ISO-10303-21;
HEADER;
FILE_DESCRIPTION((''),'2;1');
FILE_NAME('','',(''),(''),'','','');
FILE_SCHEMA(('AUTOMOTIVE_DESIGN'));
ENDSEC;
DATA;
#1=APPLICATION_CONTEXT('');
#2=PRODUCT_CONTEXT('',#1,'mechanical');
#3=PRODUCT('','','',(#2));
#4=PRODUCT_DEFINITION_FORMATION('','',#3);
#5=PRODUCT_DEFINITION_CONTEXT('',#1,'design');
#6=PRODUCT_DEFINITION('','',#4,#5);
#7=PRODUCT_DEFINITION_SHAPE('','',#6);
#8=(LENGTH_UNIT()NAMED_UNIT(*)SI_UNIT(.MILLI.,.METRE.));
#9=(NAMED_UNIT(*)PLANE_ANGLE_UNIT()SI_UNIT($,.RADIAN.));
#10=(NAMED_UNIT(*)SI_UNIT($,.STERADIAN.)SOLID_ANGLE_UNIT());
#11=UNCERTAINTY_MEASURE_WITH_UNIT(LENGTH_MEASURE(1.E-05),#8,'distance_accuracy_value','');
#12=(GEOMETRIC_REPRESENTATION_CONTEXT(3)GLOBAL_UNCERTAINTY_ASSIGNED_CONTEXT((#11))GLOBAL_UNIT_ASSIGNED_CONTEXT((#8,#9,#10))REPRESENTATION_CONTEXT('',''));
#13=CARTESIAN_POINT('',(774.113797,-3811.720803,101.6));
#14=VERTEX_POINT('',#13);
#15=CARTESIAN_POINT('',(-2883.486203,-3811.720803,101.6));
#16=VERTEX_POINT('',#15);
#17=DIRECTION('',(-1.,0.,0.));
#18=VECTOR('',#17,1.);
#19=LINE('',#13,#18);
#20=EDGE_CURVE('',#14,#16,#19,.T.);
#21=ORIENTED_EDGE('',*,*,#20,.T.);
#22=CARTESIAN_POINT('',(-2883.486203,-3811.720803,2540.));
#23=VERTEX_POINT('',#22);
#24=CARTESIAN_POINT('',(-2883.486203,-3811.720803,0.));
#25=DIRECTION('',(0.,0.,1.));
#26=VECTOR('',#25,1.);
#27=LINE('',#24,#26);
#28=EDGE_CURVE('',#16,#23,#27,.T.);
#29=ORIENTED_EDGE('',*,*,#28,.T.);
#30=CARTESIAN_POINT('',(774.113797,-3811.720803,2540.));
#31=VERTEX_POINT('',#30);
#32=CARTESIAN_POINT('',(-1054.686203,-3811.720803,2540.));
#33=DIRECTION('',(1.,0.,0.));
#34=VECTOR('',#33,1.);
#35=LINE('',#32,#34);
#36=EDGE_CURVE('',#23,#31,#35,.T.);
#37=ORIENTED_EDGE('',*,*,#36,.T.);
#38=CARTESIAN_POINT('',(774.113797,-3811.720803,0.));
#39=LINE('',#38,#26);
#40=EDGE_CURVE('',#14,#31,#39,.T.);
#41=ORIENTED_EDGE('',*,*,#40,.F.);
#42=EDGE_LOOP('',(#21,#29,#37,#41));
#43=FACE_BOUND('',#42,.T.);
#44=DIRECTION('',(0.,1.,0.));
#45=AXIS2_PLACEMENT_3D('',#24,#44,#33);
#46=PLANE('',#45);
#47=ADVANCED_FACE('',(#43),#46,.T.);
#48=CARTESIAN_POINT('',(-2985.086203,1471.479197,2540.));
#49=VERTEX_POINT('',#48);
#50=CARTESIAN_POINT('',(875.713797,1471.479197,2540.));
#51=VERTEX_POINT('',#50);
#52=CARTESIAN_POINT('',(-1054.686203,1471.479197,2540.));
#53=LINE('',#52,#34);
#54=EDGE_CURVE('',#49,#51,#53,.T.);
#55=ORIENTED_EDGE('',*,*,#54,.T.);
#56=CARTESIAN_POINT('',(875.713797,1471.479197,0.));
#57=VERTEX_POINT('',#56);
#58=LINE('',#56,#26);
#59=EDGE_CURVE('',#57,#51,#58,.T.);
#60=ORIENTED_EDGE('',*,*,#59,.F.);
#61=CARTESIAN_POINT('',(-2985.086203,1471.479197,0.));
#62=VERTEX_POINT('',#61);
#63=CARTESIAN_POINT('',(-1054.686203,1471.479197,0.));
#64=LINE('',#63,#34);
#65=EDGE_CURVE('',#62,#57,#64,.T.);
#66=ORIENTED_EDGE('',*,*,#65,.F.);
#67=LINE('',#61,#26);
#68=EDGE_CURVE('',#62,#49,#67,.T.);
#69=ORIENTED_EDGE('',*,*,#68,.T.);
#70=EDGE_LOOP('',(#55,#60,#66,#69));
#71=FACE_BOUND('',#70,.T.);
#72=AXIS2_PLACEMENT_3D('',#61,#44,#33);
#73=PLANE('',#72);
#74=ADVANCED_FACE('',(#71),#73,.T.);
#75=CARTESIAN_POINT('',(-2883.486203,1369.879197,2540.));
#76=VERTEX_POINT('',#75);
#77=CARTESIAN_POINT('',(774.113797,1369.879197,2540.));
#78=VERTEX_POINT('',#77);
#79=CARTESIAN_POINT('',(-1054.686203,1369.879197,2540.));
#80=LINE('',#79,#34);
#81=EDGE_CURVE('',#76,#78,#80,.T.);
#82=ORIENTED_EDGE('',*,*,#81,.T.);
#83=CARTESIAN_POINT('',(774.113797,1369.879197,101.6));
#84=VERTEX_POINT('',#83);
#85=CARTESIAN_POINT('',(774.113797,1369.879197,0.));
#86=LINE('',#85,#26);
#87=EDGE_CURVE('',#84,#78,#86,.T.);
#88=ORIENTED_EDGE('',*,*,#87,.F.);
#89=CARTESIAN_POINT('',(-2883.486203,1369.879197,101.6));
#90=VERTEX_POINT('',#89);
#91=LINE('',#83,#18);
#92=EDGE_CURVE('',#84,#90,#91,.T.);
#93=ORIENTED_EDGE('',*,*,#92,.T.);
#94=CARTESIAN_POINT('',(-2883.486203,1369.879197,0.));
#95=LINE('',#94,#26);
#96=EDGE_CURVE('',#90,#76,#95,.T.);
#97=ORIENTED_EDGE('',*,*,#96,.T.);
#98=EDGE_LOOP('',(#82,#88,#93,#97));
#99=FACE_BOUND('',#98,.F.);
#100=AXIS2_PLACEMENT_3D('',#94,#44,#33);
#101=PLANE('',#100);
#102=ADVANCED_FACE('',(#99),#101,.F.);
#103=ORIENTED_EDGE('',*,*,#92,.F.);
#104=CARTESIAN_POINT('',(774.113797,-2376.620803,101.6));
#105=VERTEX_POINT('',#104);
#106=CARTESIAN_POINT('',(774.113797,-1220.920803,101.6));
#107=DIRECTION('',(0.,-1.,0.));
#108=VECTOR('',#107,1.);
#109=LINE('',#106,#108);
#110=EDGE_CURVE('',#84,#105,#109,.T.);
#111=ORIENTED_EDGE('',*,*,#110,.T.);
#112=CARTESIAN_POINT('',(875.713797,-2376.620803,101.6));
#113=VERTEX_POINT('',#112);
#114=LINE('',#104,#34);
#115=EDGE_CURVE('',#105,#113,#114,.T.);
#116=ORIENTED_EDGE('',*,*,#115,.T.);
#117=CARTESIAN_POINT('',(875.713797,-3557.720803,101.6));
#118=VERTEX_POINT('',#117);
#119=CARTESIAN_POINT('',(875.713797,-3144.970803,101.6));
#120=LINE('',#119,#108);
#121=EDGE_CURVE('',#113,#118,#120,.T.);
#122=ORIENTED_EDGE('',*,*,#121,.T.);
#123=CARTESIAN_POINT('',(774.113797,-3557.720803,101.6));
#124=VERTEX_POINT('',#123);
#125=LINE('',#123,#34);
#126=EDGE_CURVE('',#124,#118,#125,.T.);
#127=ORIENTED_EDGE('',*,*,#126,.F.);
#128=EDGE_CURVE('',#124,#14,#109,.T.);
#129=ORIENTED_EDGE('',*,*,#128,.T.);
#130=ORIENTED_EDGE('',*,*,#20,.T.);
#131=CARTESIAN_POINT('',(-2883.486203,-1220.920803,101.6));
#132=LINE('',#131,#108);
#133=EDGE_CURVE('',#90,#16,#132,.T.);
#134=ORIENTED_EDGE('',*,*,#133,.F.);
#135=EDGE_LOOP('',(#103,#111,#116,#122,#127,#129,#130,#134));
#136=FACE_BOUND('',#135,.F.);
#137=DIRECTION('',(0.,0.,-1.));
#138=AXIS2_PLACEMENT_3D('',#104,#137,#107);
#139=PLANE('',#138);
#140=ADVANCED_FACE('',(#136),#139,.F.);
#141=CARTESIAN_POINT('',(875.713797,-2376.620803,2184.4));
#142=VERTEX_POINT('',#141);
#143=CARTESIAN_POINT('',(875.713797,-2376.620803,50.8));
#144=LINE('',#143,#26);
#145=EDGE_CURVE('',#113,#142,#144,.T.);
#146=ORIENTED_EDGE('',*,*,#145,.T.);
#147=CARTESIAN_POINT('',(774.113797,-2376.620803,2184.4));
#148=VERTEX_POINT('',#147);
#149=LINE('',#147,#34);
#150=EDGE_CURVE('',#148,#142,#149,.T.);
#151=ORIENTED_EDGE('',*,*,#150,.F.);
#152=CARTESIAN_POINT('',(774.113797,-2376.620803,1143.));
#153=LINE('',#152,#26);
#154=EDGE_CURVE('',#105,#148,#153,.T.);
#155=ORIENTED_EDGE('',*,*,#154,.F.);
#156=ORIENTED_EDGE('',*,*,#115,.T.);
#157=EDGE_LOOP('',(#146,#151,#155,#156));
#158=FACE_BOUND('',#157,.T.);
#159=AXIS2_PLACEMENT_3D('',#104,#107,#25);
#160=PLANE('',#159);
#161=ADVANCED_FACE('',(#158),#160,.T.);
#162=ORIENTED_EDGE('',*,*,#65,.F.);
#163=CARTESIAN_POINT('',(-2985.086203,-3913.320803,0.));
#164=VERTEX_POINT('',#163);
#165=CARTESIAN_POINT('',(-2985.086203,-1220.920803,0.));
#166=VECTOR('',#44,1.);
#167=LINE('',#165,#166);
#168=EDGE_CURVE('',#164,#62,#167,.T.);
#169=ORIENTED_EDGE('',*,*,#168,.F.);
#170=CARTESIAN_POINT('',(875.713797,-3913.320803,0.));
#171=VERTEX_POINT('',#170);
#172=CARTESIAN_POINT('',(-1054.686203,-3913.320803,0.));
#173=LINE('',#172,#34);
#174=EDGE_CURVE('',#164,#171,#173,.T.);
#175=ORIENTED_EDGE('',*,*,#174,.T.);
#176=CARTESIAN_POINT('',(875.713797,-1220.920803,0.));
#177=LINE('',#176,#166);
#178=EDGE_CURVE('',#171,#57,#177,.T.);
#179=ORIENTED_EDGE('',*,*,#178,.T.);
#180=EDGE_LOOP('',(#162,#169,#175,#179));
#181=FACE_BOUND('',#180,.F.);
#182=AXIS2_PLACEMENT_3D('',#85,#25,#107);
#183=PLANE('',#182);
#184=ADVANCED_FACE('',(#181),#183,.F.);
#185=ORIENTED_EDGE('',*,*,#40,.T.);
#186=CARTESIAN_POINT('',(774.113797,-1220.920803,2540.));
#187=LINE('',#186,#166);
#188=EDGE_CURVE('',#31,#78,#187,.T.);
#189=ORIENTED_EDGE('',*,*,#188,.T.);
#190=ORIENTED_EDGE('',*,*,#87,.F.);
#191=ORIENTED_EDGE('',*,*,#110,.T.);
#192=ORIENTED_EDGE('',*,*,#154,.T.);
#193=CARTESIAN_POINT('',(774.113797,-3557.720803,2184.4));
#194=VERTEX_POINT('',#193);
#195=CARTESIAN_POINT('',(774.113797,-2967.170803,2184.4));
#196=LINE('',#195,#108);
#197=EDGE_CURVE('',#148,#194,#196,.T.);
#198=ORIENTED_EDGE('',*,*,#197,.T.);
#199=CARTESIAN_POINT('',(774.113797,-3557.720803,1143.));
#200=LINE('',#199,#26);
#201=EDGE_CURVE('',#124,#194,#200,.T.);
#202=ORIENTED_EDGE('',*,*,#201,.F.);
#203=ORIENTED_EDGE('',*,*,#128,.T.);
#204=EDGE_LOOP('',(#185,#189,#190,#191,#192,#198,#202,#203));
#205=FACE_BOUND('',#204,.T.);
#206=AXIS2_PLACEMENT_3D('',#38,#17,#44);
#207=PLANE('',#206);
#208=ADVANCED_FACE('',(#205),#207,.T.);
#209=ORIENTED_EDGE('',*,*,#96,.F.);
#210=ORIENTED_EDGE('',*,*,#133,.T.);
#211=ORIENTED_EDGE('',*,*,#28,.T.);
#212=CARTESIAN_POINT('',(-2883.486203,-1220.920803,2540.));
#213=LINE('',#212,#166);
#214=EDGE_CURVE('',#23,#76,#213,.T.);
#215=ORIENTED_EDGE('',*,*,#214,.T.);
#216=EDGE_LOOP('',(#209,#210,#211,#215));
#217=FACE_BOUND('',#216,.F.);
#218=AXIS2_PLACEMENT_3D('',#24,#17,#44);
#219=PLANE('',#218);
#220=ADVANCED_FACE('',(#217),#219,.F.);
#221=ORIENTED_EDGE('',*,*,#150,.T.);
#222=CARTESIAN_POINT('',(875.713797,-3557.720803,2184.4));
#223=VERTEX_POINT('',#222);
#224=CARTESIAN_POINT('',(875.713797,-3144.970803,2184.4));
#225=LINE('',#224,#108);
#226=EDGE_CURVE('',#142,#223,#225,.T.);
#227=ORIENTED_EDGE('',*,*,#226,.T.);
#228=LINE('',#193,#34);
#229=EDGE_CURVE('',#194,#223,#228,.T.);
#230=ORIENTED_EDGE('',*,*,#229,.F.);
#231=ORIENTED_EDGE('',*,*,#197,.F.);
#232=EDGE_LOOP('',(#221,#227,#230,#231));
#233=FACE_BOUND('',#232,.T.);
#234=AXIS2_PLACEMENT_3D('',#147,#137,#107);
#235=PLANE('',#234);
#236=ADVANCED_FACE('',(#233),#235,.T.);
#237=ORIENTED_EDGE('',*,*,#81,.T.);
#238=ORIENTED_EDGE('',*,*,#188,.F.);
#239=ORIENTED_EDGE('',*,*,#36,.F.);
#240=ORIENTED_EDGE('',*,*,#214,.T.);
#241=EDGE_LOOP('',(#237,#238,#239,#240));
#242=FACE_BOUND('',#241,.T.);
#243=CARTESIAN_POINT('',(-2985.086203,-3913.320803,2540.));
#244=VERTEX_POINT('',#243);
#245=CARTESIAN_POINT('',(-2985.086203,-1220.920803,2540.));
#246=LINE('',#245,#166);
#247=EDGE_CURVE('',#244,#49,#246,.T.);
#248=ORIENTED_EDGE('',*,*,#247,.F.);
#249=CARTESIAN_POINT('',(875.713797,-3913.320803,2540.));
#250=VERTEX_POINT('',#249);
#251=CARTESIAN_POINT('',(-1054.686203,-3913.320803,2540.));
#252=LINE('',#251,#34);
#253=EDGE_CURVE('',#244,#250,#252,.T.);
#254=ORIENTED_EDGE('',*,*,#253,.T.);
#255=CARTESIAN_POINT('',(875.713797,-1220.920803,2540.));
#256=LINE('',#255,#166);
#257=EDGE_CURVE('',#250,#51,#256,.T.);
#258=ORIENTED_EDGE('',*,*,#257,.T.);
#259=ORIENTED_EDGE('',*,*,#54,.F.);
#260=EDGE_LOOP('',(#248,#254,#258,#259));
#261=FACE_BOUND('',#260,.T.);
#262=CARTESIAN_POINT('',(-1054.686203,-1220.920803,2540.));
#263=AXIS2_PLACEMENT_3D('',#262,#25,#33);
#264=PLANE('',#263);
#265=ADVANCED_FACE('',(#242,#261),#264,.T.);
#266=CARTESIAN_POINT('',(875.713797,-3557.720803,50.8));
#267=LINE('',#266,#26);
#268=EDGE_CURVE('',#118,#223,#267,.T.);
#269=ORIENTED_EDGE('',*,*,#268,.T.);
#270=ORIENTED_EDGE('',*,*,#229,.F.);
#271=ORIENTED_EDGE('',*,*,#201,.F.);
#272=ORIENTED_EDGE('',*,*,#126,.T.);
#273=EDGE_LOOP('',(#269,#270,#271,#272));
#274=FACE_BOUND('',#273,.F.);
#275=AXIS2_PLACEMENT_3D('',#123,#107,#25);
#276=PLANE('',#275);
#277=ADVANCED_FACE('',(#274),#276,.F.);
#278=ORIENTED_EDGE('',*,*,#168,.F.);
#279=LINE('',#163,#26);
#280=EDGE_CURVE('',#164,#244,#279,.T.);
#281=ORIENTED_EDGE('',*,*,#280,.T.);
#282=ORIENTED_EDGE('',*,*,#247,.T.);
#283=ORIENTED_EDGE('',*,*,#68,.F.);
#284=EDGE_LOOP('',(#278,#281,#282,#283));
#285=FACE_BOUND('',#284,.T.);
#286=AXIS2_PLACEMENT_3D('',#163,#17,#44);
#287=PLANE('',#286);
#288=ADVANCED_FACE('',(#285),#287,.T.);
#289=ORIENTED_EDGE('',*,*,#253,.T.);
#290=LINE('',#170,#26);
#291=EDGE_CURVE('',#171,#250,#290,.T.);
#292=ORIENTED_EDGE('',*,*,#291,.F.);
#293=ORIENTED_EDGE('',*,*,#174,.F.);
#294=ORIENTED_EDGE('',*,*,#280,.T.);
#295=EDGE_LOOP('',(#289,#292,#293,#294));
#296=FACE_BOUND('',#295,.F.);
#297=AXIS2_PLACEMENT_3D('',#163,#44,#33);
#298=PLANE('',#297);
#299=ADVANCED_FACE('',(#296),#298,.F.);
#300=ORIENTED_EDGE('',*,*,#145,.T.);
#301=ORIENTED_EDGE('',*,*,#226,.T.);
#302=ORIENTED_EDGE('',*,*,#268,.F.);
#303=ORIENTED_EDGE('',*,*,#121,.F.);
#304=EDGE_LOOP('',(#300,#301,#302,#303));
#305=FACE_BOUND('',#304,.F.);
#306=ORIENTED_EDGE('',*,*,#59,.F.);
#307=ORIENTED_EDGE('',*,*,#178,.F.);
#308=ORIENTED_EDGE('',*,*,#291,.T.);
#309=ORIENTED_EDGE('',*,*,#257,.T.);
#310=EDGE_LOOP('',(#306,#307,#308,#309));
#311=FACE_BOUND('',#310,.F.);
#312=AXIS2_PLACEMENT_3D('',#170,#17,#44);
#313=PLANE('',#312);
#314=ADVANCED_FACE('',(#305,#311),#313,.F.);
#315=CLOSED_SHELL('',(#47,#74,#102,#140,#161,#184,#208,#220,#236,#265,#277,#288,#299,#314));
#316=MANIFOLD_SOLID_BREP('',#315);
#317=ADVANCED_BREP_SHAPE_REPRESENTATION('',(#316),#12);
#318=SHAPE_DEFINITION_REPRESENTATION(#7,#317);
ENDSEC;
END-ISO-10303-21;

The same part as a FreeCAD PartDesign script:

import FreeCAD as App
import Part
import Sketcher

V = App.Vector
Q = App.Units.Quantity

doc = App.newDocument("Part")
body = doc.addObject("PartDesign::Body", "Body")

# Sketch on XY plane
sketch1 = body.newObject("Sketcher::SketchObject", "Sketch")
sketch1.AttachmentSupport = (doc.getObject("XY_Plane"), [""])
sketch1.MapMode = "FlatFace"
sketch1.addGeometry(Part.LineSegment(V(-2985, 1471, 0), V(-2985, -3913, 0)), False)
sketch1.addGeometry(Part.LineSegment(V(-2985, -3913, 0), V(876, -3913, 0)), False)
sketch1.addGeometry(Part.LineSegment(V(876, -3913, 0), V(876, 1471, 0)), False)
sketch1.addGeometry(Part.LineSegment(V(876, 1471, 0), V(-2985, 1471, 0)), False)
sketch1.addGeometry(Part.LineSegment(V(774, -3812, 0), V(-2883, -3812, 0)), False)
sketch1.addGeometry(Part.LineSegment(V(-2883, -3812, 0), V(-2883, 1370, 0)), False)
sketch1.addGeometry(Part.LineSegment(V(-2883, 1370, 0), V(774, 1370, 0)), False)
sketch1.addGeometry(Part.LineSegment(V(774, 1370, 0), V(774, -3812, 0)), False)
sketch1.addConstraint(Sketcher.Constraint("Coincident", 0, 2, 1, 1))
sketch1.addConstraint(Sketcher.Constraint("Coincident", 1, 2, 2, 1))
sketch1.addConstraint(Sketcher.Constraint("Coincident", 2, 2, 3, 1))
sketch1.addConstraint(Sketcher.Constraint("Coincident", 3, 2, 0, 1))
sketch1.addConstraint(Sketcher.Constraint("Coincident", 4, 2, 5, 1))
sketch1.addConstraint(Sketcher.Constraint("Coincident", 5, 2, 6, 1))
sketch1.addConstraint(Sketcher.Constraint("Coincident", 6, 2, 7, 1))
sketch1.addConstraint(Sketcher.Constraint("Coincident", 7, 2, 4, 1))
sketch1.addConstraint(Sketcher.Constraint("Vertical", 0))
sketch1.addConstraint(Sketcher.Constraint("Horizontal", 1))
sketch1.addConstraint(Sketcher.Constraint("Vertical", 2))
sketch1.addConstraint(Sketcher.Constraint("Horizontal", 3))
sketch1.addConstraint(Sketcher.Constraint("Horizontal", 4))
sketch1.addConstraint(Sketcher.Constraint("Vertical", 5))
sketch1.addConstraint(Sketcher.Constraint("Horizontal", 6))
sketch1.addConstraint(Sketcher.Constraint("Vertical", 7))
sketch1.addConstraint(Sketcher.Constraint("DistanceX", 1, 1, 1, 2, Q("152 in")))
sketch1.addConstraint(Sketcher.Constraint("DistanceX", 4, 2, 4, 1, Q("144 in")))
sketch1.addConstraint(Sketcher.Constraint("DistanceY", 0, 2, 0, 1, Q("212 in")))
sketch1.addConstraint(Sketcher.Constraint("DistanceY", 5, 1, 5, 2, Q("204 in")))
sketch1.addConstraint(Sketcher.Constraint("DistanceX", 0, 2, 4, 2, Q("4 in")))
sketch1.addConstraint(Sketcher.Constraint("DistanceY", 0, 2, 4, 2, Q("4 in")))
sketch1.addConstraint(Sketcher.Constraint("DistanceX", 0, 2, -1, 1, Q("2985.086203 mm")))
sketch1.addConstraint(Sketcher.Constraint("DistanceY", 0, 2, -1, 1, Q("3913.320803 mm")))
pad1 = body.newObject("PartDesign::Pad", "Pad")
pad1.Profile = sketch1
pad1.Length = Q("100 in")

# Sketch on YZ plane
sketch2 = body.newObject("Sketcher::SketchObject", "Sketch001")
sketch2.AttachmentSupport = (doc.getObject("YZ_Plane"), [""])
sketch2.MapMode = "FlatFace"
sketch2.AttachmentOffset = App.Placement(V(0, 0, 774.113797), App.Rotation())
sketch2.addGeometry(Part.LineSegment(V(1370, 102, 0), V(1370, 0, 0)), False)
sketch2.addGeometry(Part.LineSegment(V(1370, 0, 0), V(-3812, 0, 0)), False)
sketch2.addGeometry(Part.LineSegment(V(-3812, 0, 0), V(-3812, 102, 0)), False)
sketch2.addGeometry(Part.LineSegment(V(-3812, 102, 0), V(1370, 102, 0)), False)
sketch2.addConstraint(Sketcher.Constraint("Coincident", 0, 2, 1, 1))
sketch2.addConstraint(Sketcher.Constraint("Coincident", 1, 2, 2, 1))
sketch2.addConstraint(Sketcher.Constraint("Coincident", 2, 2, 3, 1))
sketch2.addConstraint(Sketcher.Constraint("Coincident", 3, 2, 0, 1))
sketch2.addConstraint(Sketcher.Constraint("Vertical", 0))
sketch2.addConstraint(Sketcher.Constraint("Horizontal", 1))
sketch2.addConstraint(Sketcher.Constraint("Vertical", 2))
sketch2.addConstraint(Sketcher.Constraint("Horizontal", 3))
sketch2.addConstraint(Sketcher.Constraint("PointOnObject", 0, 2, -1))
sketch2.addConstraint(Sketcher.Constraint("DistanceX", 1, 2, 1, 1, Q("204 in")))
sketch2.addConstraint(Sketcher.Constraint("DistanceY", 0, 2, 0, 1, Q("4 in")))
sketch2.addConstraint(Sketcher.Constraint("DistanceX", -1, 1, 0, 2, Q("1369.879197 mm")))
pad2 = body.newObject("PartDesign::Pad", "Pad001")
pad2.Profile = sketch2
pad2.Type = "UpToLast"
pad2.Reversed = True

# Sketch on YZ plane
sketch3 = body.newObject("Sketcher::SketchObject", "Sketch002")
sketch3.AttachmentSupport = (doc.getObject("YZ_Plane"), [""])
sketch3.MapMode = "FlatFace"
sketch3.AttachmentOffset = App.Placement(V(0, 0, 774.113797), App.Rotation())
sketch3.addGeometry(Part.LineSegment(V(-2377, 2184, 0), V(-2377, 102, 0)), False)
sketch3.addGeometry(Part.LineSegment(V(-2377, 102, 0), V(-3558, 102, 0)), False)
sketch3.addGeometry(Part.LineSegment(V(-3558, 102, 0), V(-3558, 2184, 0)), False)
sketch3.addGeometry(Part.LineSegment(V(-3558, 2184, 0), V(-2377, 2184, 0)), False)
sketch3.addConstraint(Sketcher.Constraint("Coincident", 0, 2, 1, 1))
sketch3.addConstraint(Sketcher.Constraint("Coincident", 1, 2, 2, 1))
sketch3.addConstraint(Sketcher.Constraint("Coincident", 2, 2, 3, 1))
sketch3.addConstraint(Sketcher.Constraint("Coincident", 3, 2, 0, 1))
sketch3.addConstraint(Sketcher.Constraint("Vertical", 0))
sketch3.addConstraint(Sketcher.Constraint("Horizontal", 1))
sketch3.addConstraint(Sketcher.Constraint("Vertical", 2))
sketch3.addConstraint(Sketcher.Constraint("Horizontal", 3))
sketch3.addConstraint(Sketcher.Constraint("DistanceY", 0, 2, 0, 1, Q("82 in")))
sketch3.addConstraint(Sketcher.Constraint("DistanceX", 1, 2, 1, 1, Q("46.5 in")))
sketch3.addConstraint(Sketcher.Constraint("DistanceY", -1, 1, 0, 2, Q("4 in")))
sketch3.addConstraint(Sketcher.Constraint("DistanceX", 0, 2, -1, 1, Q("2376.620803 mm")))
pocket1 = body.newObject("PartDesign::Pocket", "Pocket")
pocket1.Profile = sketch3
pocket1.Type = "ThroughAll"
pocket1.Reversed = True

doc.recompute()
